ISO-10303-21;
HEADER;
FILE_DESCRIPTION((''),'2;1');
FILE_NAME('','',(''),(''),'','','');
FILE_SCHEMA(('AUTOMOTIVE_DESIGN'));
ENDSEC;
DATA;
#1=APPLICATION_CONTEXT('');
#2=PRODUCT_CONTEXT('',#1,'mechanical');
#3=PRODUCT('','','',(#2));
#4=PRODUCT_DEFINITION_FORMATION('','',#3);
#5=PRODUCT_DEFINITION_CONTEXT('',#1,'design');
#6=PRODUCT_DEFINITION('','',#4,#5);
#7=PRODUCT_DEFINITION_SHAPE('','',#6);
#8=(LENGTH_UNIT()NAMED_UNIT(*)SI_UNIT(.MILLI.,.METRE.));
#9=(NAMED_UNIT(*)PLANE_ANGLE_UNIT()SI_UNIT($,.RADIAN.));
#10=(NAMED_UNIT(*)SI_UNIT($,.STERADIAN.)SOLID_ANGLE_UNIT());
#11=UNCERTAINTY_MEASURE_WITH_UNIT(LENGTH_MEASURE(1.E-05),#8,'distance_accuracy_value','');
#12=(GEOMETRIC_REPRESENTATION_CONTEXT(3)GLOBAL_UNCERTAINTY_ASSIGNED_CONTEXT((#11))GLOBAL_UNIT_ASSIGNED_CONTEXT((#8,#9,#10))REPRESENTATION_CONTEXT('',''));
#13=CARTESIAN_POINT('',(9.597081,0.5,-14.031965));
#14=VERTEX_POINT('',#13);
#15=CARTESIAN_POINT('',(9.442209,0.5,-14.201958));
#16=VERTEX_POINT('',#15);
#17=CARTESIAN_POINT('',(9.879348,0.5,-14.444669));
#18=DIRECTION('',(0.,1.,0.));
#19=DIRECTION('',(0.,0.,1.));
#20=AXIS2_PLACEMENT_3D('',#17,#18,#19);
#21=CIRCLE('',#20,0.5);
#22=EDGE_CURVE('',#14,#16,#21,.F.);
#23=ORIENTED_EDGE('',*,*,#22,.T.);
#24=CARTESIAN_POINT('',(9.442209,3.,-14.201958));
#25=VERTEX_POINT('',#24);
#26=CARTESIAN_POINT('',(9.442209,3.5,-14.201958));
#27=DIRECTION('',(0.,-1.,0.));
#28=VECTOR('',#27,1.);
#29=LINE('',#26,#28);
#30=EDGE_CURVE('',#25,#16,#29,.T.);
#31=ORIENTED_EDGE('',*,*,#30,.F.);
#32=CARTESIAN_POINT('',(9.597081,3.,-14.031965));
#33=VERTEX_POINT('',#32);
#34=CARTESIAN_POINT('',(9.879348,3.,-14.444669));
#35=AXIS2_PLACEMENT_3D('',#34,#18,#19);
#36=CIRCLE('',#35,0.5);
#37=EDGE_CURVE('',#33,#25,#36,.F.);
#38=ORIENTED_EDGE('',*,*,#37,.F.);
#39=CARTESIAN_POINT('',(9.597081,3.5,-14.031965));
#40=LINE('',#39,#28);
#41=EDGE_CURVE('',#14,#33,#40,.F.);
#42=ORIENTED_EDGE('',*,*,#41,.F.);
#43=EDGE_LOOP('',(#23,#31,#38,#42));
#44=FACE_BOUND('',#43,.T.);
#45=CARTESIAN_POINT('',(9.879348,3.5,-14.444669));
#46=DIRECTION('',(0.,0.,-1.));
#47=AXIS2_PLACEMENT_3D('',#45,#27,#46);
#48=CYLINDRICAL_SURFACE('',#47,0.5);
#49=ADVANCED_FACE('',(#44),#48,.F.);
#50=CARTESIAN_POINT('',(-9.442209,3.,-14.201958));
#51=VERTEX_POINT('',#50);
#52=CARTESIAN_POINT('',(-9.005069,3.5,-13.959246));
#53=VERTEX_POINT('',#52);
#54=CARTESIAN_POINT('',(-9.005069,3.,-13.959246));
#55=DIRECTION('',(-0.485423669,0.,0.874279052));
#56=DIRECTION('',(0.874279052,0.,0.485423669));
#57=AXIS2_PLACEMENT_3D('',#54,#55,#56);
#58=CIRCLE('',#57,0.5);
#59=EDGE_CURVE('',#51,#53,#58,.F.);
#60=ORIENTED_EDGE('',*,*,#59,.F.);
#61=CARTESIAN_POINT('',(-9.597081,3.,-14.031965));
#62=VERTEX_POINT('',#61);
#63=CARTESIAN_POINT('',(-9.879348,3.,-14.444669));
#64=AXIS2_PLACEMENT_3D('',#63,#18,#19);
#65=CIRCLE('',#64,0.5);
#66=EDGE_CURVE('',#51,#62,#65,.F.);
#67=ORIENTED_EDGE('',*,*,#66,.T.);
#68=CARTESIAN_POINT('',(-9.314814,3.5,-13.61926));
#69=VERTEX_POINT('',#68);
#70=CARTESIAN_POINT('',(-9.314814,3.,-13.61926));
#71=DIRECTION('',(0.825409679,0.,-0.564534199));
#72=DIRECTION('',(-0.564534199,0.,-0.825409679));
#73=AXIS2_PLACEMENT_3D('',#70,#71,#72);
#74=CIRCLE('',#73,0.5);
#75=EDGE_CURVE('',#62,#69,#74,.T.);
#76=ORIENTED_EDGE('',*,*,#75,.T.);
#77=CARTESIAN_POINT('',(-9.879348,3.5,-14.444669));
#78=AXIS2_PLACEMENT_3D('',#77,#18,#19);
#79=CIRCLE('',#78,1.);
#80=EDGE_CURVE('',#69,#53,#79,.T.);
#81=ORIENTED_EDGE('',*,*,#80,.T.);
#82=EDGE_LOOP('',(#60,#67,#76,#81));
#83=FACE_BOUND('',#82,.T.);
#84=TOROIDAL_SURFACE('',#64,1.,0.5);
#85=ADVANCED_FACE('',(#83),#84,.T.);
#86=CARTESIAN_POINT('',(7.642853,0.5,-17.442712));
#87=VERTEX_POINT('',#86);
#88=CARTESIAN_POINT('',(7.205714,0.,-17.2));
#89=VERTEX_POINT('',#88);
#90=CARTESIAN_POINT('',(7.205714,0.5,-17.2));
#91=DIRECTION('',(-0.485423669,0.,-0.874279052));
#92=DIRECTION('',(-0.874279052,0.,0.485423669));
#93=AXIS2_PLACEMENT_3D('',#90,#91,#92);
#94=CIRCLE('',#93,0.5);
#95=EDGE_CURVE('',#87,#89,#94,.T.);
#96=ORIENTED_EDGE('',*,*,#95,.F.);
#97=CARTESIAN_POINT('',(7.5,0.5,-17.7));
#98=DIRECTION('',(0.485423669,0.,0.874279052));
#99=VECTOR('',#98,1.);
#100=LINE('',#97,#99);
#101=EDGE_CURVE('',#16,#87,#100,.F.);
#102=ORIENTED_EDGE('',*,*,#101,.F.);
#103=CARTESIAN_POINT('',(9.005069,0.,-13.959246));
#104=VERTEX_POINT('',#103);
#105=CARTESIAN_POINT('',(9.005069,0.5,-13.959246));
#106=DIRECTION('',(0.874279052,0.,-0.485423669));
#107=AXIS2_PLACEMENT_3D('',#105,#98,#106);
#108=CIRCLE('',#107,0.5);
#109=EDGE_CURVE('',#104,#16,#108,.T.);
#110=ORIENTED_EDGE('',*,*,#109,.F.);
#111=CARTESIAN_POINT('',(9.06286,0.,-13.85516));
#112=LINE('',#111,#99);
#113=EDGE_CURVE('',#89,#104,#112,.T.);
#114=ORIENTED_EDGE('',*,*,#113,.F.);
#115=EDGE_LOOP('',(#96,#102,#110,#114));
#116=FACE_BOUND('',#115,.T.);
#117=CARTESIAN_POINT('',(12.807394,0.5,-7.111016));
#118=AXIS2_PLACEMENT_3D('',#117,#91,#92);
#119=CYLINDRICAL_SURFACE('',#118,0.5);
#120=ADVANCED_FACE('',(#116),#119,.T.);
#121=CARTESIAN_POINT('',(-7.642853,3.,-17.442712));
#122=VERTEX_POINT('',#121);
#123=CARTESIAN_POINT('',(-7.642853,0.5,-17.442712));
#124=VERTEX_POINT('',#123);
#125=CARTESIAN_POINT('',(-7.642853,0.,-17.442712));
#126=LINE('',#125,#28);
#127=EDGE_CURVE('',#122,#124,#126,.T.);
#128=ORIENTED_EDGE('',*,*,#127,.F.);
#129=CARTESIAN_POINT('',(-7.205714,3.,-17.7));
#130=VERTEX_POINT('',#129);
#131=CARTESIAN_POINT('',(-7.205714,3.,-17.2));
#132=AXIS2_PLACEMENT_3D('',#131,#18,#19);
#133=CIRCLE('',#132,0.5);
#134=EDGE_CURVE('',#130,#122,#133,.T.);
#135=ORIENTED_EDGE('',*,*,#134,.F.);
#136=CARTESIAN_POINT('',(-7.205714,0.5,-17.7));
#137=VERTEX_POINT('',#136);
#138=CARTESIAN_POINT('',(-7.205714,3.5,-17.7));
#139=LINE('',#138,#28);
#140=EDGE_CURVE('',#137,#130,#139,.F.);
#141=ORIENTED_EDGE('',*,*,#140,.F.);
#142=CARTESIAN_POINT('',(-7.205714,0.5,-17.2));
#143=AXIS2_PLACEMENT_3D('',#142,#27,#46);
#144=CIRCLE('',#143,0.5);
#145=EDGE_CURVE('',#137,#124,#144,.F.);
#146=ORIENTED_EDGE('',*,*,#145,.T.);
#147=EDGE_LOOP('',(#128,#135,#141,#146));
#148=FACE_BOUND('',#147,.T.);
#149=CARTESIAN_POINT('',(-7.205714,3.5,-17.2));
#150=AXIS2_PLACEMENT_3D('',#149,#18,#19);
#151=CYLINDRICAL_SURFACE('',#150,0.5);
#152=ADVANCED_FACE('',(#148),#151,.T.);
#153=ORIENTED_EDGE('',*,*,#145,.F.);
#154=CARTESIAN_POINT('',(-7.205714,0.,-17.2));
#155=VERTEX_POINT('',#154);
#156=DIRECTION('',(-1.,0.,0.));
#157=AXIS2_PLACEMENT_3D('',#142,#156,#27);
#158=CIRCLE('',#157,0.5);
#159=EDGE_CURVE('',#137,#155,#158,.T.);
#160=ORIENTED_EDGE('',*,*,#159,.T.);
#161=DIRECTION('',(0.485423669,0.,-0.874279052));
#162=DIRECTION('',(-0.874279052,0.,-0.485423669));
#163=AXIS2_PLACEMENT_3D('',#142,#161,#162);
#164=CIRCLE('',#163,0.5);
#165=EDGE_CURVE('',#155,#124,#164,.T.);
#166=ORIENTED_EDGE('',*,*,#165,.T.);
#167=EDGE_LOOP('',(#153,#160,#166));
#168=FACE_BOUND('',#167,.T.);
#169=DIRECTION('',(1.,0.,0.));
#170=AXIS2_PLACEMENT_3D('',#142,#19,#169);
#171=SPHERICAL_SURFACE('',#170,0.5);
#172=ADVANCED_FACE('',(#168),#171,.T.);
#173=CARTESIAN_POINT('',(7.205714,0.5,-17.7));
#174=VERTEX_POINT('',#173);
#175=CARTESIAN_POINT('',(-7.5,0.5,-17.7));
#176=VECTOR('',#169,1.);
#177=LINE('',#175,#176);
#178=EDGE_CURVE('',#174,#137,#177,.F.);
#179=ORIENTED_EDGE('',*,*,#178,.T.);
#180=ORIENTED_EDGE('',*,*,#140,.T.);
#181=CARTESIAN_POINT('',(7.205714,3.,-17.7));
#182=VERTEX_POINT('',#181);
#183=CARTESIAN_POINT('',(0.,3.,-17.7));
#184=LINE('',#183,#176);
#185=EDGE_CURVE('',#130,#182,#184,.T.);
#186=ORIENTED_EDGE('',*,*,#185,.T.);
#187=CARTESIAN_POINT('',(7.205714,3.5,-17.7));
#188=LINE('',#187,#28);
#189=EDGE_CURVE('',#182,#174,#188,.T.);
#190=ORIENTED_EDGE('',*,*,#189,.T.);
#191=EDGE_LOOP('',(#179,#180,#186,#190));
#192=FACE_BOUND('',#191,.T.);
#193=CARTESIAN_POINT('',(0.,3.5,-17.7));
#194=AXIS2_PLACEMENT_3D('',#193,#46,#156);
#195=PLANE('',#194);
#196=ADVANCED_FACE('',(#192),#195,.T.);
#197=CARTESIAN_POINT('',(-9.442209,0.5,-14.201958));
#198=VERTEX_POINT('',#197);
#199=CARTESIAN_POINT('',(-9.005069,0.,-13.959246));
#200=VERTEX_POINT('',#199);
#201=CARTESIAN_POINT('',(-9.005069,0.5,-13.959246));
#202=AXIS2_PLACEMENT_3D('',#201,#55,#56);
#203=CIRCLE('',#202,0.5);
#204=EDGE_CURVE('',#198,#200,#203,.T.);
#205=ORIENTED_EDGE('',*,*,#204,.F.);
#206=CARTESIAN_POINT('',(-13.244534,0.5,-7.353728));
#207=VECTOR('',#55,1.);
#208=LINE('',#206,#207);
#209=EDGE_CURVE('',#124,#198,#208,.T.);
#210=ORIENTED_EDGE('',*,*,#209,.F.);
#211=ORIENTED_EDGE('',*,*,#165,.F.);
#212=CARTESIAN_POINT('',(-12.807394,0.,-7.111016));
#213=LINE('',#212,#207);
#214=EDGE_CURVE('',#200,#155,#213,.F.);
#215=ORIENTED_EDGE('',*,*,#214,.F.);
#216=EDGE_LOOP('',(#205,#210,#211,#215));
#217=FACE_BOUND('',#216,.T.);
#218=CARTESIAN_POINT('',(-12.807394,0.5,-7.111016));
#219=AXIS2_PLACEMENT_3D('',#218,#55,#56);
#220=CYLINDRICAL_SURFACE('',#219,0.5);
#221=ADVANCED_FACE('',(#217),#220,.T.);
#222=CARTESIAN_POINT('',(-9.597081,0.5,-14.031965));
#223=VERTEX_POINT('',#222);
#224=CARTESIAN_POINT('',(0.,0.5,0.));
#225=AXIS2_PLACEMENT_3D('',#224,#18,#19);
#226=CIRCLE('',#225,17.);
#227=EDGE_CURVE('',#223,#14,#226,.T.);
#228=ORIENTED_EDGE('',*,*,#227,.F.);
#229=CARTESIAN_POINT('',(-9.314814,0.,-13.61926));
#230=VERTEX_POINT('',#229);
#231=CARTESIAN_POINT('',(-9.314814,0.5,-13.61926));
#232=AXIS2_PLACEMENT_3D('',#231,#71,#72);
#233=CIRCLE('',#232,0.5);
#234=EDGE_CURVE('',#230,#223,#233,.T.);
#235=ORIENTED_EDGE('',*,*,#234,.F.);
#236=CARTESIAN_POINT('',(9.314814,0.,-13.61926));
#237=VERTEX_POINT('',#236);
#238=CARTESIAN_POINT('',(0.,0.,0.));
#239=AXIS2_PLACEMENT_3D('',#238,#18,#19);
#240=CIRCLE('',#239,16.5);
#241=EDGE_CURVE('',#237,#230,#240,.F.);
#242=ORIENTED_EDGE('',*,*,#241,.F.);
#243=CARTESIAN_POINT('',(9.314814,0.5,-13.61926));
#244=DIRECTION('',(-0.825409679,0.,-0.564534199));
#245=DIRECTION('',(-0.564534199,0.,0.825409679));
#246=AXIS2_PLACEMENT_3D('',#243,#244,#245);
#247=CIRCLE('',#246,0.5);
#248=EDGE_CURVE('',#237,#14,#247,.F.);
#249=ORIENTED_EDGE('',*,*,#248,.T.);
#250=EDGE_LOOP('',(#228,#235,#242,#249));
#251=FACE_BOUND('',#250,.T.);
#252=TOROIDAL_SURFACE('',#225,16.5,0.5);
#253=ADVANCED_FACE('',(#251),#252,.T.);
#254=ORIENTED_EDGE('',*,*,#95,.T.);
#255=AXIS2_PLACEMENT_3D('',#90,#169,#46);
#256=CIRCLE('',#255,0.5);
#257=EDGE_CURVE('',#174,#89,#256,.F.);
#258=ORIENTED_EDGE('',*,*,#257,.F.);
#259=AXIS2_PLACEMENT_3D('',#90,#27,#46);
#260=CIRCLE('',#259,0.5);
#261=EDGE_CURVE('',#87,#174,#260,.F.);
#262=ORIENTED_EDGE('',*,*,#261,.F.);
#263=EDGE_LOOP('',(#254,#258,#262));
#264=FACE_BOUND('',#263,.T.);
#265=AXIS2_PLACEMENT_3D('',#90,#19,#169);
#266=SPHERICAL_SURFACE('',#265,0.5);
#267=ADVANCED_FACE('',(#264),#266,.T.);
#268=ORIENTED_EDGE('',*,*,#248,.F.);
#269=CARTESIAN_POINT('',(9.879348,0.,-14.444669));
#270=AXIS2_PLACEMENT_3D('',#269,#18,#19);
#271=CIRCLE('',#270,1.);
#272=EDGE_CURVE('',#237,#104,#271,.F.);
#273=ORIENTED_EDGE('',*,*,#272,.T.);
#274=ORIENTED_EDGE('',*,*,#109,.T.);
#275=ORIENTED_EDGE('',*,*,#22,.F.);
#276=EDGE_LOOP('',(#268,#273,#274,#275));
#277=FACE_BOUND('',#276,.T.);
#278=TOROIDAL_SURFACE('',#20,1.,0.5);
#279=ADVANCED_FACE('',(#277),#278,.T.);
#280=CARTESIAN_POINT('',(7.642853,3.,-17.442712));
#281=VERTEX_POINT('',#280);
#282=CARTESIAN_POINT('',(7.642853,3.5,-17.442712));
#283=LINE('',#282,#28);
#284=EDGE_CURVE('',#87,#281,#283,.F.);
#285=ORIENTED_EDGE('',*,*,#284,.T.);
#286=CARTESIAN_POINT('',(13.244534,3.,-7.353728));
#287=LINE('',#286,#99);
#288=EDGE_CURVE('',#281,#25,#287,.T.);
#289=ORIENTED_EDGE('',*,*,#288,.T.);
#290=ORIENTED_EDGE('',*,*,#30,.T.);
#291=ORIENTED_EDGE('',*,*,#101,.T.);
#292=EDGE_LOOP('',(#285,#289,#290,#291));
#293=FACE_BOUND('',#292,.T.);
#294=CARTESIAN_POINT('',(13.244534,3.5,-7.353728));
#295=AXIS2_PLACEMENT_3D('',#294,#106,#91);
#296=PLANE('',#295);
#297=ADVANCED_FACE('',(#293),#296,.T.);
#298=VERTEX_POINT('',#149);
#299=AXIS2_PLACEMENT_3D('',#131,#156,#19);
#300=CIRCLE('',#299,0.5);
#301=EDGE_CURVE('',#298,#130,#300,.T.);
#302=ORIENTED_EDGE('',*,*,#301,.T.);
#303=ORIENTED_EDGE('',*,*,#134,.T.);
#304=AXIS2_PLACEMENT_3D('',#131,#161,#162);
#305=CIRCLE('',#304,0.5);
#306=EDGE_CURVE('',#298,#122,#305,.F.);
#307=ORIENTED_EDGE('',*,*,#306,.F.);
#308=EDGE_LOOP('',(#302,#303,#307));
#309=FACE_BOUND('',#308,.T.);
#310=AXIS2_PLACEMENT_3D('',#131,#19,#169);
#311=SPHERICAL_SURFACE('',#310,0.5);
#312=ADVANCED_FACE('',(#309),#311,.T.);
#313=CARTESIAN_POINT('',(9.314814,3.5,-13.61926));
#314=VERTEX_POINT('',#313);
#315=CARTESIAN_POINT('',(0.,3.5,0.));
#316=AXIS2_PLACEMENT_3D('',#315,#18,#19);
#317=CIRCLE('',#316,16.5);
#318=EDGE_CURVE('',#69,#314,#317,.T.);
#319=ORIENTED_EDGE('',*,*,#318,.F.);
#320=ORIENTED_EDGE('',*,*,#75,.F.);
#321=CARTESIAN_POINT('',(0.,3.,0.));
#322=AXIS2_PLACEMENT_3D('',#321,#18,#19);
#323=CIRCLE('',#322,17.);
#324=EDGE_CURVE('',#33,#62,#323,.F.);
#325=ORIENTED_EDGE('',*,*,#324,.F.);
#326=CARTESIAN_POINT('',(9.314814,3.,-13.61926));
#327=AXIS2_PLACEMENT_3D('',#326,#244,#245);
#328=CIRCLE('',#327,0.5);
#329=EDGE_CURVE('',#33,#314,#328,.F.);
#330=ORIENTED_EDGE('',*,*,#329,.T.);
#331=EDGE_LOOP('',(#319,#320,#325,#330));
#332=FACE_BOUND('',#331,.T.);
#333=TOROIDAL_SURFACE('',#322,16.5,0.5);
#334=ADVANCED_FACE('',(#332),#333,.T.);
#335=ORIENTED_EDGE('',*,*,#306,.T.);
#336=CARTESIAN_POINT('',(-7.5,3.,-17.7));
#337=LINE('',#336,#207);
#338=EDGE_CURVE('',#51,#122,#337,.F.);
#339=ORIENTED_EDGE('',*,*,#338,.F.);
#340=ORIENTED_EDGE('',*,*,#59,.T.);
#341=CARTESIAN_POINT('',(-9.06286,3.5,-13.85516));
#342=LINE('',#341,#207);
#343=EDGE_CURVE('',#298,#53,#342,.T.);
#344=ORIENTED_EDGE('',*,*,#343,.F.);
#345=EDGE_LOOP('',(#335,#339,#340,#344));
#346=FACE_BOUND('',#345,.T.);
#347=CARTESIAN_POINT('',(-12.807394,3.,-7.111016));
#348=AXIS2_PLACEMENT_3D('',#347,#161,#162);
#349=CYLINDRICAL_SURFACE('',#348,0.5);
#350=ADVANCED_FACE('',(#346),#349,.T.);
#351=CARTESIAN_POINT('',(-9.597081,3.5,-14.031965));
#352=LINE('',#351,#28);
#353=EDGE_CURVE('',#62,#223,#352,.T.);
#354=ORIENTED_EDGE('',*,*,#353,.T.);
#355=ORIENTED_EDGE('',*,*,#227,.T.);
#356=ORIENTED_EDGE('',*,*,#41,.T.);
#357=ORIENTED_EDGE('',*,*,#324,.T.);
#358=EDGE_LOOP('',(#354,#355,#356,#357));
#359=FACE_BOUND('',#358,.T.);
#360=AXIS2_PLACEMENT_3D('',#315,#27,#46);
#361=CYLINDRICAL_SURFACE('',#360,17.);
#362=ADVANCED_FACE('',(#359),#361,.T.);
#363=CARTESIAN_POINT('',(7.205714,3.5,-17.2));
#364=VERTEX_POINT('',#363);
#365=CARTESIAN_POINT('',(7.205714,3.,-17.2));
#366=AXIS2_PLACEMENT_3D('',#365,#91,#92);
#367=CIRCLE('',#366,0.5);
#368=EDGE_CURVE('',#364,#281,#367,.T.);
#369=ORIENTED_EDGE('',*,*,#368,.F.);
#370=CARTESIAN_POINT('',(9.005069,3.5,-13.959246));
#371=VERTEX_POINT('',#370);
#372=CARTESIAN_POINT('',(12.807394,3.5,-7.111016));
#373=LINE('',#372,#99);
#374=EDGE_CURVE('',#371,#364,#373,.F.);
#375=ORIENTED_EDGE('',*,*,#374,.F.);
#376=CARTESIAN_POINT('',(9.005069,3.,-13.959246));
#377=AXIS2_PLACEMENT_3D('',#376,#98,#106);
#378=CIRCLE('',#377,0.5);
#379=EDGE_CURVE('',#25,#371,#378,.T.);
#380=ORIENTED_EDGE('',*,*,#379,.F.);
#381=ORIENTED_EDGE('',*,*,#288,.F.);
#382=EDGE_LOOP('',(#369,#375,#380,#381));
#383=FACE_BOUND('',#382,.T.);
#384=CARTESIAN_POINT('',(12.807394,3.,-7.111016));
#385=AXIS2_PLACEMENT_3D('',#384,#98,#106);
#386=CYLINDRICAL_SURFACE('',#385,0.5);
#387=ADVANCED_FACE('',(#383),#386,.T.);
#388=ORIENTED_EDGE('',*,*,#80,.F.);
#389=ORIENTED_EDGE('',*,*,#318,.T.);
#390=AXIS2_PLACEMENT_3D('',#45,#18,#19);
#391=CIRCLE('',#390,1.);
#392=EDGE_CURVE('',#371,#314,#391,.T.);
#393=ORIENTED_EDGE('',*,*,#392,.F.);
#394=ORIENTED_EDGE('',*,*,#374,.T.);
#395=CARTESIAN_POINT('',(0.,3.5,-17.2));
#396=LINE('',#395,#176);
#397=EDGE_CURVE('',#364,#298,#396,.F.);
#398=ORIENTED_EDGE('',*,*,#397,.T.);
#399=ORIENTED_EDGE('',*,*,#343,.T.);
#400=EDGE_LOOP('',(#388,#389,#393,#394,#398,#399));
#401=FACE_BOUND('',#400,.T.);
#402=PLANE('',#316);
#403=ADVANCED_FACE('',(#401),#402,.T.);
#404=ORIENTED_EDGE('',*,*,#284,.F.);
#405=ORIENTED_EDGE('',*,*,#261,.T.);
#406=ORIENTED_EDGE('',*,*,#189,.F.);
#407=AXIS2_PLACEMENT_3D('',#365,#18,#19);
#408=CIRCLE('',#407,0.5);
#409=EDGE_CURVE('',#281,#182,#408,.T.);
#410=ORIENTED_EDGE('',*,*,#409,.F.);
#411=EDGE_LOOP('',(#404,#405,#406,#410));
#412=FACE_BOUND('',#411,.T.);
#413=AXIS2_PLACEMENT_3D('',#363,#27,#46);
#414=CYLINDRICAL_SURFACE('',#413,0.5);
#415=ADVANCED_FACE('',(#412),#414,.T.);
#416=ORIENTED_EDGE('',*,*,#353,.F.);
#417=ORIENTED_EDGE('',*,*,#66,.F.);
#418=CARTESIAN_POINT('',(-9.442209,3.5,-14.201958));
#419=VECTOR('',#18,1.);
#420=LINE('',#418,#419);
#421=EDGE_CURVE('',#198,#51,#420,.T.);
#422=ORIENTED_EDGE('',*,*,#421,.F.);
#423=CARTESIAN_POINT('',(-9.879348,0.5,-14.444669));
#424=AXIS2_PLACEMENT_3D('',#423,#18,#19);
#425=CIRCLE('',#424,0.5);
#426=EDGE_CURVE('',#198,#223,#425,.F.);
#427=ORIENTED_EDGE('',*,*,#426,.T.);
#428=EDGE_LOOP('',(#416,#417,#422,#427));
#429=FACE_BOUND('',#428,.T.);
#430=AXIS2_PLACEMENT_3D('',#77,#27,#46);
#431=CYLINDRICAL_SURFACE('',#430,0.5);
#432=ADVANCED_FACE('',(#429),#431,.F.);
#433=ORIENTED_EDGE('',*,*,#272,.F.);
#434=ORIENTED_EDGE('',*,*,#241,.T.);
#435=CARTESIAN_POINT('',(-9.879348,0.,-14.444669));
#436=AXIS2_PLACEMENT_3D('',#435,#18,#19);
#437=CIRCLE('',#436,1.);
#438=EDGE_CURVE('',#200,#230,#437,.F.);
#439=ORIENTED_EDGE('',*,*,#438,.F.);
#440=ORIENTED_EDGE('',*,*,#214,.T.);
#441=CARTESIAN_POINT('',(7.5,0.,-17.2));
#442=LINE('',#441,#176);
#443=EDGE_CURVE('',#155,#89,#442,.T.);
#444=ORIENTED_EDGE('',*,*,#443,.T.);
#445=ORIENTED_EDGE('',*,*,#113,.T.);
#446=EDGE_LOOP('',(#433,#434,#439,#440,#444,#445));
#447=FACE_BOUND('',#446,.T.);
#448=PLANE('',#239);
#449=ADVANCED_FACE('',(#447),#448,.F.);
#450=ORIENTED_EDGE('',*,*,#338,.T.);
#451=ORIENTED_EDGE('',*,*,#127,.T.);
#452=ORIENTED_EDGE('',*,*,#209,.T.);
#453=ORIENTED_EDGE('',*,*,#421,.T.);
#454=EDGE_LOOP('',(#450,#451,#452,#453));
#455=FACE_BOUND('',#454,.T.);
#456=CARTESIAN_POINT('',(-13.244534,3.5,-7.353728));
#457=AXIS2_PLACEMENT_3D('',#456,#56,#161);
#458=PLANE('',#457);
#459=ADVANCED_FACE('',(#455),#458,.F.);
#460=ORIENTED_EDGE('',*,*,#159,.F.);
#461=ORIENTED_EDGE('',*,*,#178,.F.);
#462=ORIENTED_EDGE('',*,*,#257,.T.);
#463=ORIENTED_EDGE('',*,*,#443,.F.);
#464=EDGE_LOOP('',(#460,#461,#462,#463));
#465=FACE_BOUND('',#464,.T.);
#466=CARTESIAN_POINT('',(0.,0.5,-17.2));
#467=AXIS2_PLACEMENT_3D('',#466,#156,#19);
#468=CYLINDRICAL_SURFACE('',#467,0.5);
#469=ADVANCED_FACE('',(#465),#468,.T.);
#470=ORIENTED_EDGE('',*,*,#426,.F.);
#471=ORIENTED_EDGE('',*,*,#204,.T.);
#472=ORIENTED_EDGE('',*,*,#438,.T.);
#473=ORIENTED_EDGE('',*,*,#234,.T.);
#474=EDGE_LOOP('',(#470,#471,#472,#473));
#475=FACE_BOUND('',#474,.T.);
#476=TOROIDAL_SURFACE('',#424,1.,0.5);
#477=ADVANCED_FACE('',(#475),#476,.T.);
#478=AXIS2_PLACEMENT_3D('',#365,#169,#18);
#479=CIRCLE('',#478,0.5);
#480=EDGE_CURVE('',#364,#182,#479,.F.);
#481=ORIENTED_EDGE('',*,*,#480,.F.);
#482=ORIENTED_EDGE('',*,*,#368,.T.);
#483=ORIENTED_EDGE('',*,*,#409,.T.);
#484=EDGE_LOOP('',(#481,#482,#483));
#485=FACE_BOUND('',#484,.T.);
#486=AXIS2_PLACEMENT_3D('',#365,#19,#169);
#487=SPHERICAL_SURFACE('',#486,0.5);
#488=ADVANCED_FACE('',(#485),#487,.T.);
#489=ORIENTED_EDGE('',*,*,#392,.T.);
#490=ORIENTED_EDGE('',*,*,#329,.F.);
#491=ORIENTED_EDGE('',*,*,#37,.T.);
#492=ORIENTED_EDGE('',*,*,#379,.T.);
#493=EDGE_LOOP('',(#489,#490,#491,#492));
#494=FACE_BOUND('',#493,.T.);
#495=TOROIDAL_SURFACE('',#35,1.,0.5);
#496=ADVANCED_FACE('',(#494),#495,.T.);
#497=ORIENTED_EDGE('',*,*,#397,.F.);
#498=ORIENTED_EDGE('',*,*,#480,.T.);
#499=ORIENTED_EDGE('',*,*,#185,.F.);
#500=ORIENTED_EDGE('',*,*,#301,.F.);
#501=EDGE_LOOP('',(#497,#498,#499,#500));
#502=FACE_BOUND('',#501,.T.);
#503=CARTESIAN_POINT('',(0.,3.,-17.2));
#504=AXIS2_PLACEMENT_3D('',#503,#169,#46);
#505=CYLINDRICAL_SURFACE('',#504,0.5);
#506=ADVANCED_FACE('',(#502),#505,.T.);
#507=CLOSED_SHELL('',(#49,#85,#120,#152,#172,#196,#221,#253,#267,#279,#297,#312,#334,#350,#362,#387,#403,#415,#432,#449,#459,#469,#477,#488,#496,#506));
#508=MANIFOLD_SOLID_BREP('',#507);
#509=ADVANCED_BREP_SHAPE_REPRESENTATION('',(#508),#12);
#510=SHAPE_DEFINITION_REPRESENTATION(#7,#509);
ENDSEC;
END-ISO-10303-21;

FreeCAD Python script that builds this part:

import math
import FreeCAD as App
import Part
import Sketcher
from FreeCAD import Vector
Q = App.Units.Quantity

doc = App.newDocument("Part")
body = doc.addObject("PartDesign::Body", "Body")

sketch1 = body.newObject("Sketcher::SketchObject", "Sketch")
sketch1.AttachmentSupport = (doc.getObject("XZ_Plane"), [""])
sketch1.MapMode = "FlatFace"
sketch1.addGeometry([
    Part.LineSegment(Vector(9.5, -14.1, 0), Vector(7.5, -17.7, 0)),
    Part.LineSegment(Vector(7.5, -17.7, 0), Vector(-7.5, -17.7, 0)),
    Part.LineSegment(Vector(-7.5, -17.7, 0), Vector(-9.5, -14.1, 0)),
    Part.ArcOfCircle(Part.Circle(Vector(0, 0, 0), Vector(0, 0, 1), 17), math.radians(-56), math.radians(236)),
], False)
sketch1.addConstraint([
    Sketcher.Constraint("Coincident", 0, 2, 1, 1),
    Sketcher.Constraint("Coincident", 1, 2, 2, 1),
    Sketcher.Constraint("Coincident", 2, 2, 3, 2),
    Sketcher.Constraint("Coincident", 3, 1, 0, 1),
    Sketcher.Constraint("Horizontal", 1),
    Sketcher.Constraint("Coincident", 3, 3, -1, 1),
    Sketcher.Constraint("Horizontal", 2, 2, 3, 1),
    Sketcher.Constraint("Equal", 0, 2),
    Sketcher.Constraint("Radius", 3, Q("17 mm")),
    Sketcher.Constraint("DistanceX", 1, 2, 1, 1, Q("15 mm")),
    Sketcher.Constraint("DistanceX", 2, 2, 1, 2, Q("2 mm")),
    Sketcher.Constraint("DistanceY", 0, 2, -1, 1, Q("17.7 mm")),
])
pad1 = body.newObject("PartDesign::Pad", "Pad")
pad1.Profile = sketch1
pad1.Length = 3.5
pad1.Reversed = True
doc.recompute()

fillet = body.newObject("PartDesign::Fillet", "Fillet")
fillet.Base = (pad1, ["Edge1"])
fillet.UseAllEdges = True
fillet.Radius = 0.5

doc.recompute()
